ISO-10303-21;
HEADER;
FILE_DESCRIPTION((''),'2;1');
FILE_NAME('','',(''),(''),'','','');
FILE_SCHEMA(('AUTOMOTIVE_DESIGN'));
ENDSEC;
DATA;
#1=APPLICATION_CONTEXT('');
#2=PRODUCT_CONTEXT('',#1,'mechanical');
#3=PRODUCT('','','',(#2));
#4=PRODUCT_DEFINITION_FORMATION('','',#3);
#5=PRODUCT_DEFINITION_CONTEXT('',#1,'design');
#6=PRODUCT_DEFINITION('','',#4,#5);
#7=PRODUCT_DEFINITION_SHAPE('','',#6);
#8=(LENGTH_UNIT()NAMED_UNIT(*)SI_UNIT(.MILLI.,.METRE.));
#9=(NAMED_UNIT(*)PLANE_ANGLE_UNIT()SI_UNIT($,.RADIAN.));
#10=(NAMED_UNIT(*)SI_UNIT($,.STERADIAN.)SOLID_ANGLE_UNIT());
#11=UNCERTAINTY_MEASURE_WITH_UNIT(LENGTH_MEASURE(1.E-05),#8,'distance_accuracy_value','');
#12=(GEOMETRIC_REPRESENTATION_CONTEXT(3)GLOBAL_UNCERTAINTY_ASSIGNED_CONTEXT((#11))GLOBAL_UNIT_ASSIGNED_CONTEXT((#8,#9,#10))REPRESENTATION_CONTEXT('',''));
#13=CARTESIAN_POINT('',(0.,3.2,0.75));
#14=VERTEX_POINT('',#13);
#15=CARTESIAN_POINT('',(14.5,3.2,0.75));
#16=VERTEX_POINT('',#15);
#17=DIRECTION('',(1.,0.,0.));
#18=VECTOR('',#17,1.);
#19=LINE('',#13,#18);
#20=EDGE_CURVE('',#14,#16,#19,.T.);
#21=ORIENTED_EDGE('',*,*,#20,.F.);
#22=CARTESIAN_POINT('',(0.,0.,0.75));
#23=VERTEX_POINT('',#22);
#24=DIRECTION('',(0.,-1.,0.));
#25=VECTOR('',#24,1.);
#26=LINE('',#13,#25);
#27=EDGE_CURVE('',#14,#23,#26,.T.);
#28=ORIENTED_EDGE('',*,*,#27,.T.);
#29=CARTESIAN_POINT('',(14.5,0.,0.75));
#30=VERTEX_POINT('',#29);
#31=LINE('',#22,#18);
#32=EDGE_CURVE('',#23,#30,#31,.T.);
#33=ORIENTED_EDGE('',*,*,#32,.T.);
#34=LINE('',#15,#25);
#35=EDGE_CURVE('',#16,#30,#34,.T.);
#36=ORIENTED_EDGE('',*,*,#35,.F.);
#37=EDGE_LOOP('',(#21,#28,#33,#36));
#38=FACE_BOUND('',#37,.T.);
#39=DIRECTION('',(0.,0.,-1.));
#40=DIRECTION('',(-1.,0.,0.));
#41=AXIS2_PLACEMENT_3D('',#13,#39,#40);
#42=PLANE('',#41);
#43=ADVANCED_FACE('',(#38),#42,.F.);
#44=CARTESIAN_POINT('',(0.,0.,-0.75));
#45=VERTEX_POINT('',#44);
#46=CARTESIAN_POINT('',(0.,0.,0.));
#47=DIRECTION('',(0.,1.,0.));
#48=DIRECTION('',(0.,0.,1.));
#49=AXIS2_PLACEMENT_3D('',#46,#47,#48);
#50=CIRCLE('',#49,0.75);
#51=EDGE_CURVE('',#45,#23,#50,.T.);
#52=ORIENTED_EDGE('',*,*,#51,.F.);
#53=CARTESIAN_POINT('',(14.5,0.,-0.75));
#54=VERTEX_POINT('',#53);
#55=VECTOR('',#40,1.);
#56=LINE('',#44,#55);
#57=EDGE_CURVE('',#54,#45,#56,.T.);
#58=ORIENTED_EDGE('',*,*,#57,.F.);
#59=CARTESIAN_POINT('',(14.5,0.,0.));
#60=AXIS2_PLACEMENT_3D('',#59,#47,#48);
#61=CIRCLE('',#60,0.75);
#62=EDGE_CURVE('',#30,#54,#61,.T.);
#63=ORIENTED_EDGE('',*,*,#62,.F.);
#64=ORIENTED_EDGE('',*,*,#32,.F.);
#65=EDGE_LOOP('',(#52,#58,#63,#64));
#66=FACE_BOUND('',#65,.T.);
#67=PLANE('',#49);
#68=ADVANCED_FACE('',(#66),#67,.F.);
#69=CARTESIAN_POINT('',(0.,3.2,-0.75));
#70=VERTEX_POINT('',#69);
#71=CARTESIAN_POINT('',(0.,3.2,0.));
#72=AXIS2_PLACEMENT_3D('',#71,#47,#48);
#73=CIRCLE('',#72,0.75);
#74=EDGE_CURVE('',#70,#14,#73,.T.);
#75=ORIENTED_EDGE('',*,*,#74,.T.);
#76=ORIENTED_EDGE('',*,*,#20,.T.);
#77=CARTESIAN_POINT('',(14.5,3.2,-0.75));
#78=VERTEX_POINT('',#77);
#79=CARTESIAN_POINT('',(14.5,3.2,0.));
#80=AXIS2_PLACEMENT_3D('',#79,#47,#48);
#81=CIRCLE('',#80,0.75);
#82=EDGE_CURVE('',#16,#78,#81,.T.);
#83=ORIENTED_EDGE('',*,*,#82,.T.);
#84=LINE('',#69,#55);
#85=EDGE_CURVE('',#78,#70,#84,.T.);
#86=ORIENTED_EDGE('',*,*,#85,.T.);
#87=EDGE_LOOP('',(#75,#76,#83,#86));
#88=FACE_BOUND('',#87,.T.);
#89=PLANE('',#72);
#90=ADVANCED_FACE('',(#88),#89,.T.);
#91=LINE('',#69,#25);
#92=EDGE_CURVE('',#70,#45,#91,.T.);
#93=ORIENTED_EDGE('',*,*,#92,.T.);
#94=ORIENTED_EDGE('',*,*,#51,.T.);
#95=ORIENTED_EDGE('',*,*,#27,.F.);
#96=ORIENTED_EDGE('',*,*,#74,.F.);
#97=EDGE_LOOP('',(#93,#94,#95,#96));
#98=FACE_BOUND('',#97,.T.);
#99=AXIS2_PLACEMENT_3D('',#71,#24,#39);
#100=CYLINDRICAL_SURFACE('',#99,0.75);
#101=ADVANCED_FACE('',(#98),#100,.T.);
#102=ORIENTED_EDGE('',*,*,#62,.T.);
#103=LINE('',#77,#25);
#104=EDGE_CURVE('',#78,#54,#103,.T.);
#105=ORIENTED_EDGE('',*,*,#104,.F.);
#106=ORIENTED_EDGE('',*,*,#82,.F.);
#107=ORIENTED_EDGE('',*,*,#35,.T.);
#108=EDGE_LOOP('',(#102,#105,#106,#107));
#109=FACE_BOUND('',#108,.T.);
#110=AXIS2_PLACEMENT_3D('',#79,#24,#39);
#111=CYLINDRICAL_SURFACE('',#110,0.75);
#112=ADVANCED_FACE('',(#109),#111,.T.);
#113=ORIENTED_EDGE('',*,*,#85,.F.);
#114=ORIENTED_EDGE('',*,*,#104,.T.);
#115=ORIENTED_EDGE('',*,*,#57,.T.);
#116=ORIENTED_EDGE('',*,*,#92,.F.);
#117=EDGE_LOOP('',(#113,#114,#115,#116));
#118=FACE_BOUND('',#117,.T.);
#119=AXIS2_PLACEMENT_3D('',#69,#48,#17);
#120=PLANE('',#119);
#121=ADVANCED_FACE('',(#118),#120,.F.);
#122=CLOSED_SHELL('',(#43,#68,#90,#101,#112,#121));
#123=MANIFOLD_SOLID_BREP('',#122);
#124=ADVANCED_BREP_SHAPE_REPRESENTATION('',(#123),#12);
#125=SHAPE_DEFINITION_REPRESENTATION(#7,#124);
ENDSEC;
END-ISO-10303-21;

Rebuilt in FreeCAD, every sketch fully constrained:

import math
import FreeCAD as App
import Part
import Sketcher
from FreeCAD import Vector

doc = App.newDocument("Part")
body = doc.addObject("PartDesign::Body", "Body")

sketch1 = doc.addObject("Sketcher::SketchObject", "Sketch")
body.addObject(sketch1)
sketch1.AttachmentSupport = (doc.XZ_Plane, [""])
sketch1.MapMode = "FlatFace"
sketch1.addGeometry([
    Part.LineSegment(Vector(14.5, -0.8, 0), Vector(0, -0.8, 0)),
    Part.ArcOfCircle(Part.Circle(Vector(0, 0, 0), Vector(0, 0, 1), 0.8), math.radians(90), math.radians(270)),
    Part.LineSegment(Vector(0, 0.8, 0), Vector(14.5, 0.8, 0)),
    Part.ArcOfCircle(Part.Circle(Vector(14.5, 0, 0), Vector(0, 0, 1), 0.8), math.radians(-90), math.radians(90)),
], False)
sketch1.addConstraint([
    Sketcher.Constraint("Tangent", 0, 2, 1, 2),
    Sketcher.Constraint("Tangent", 1, 1, 2, 1),
    Sketcher.Constraint("Tangent", 2, 2, 3, 2),
    Sketcher.Constraint("Tangent", 3, 1, 0, 1),
    Sketcher.Constraint("Horizontal", 0),
    Sketcher.Constraint("Horizontal", 2),
    Sketcher.Constraint("Coincident", 1, 3, -1, 1),
    Sketcher.Constraint("Radius", 1, 0.75),
    Sketcher.Constraint("DistanceX", 0, 2, 0, 1, 14.5),
])
pad1 = doc.addObject("PartDesign::Pad", "Pad")
body.addObject(pad1)
pad1.Profile = sketch1
pad1.Length = 3.2
pad1.Reversed = True

doc.recompute()
